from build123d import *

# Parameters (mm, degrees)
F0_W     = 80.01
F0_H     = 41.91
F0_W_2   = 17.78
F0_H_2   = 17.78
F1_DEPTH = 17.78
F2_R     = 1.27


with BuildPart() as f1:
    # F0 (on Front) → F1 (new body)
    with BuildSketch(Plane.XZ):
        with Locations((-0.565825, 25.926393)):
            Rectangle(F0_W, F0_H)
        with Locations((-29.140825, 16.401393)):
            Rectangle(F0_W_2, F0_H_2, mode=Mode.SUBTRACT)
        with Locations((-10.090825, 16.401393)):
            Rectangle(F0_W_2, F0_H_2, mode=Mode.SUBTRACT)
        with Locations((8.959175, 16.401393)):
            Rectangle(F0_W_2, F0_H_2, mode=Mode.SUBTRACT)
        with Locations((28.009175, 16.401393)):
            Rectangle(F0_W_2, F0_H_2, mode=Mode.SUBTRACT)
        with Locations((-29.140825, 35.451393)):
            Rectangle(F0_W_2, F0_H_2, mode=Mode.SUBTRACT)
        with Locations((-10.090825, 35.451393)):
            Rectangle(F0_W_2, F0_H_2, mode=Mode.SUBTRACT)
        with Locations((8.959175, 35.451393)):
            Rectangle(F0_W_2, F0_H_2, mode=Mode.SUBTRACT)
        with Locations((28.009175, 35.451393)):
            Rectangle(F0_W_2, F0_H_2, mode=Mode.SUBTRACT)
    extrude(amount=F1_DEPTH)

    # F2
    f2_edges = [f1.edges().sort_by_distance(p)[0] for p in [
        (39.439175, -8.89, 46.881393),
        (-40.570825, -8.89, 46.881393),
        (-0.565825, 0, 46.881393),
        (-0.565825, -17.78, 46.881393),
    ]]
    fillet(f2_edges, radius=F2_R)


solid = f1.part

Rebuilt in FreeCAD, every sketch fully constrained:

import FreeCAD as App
import Part
import Sketcher
Q = App.Units.Quantity


def edges_at(feature, points):
    """Names of the edges that pass closest to the given points."""
    edges = feature.Shape.Edges
    near = lambda p: min(range(len(edges)), key=lambda i: edges[i].distToShape(Part.Vertex(*p))[0])
    return sorted({f"Edge{near(p) + 1}" for p in points})

doc = App.newDocument("Part")
params = doc.addObject("Spreadsheet::Sheet", "Params")
for row, (alias, value) in enumerate([
    ("sketch1_width", "0.7 in"),
    ("sketch1_width2", "3.15 in"),
    ("sketch1_height", "1.65 in"),
    ("pad1_length", "0.7 in"),
    ("fillet_radius", "0.05 in"),
], start=1):
    params.set(f"A{row}", alias)
    params.set(f"B{row}", "=" + value)
    params.setAlias(f"B{row}", alias)

body = doc.addObject("PartDesign::Body", "Body")

# Sketch on XZ plane
sketch1 = body.newObject("Sketcher::SketchObject", "Sketch")
sketch1.AttachmentSupport = (doc.getObject("XZ_Plane"), [""])
sketch1.MapMode = "FlatFace"
sketch1.addGeometry([
    Part.LineSegment(App.Vector(-40.570825, 46.881393, 0), App.Vector(-40.570825, 4.971393, 0)),  # 0
    Part.LineSegment(App.Vector(-40.570825, 4.971393, 0), App.Vector(39.439175, 4.971393, 0)),  # 1
    Part.LineSegment(App.Vector(39.439175, 4.971393, 0), App.Vector(39.439175, 46.881393, 0)),  # 2
    Part.LineSegment(App.Vector(39.439175, 46.881393, 0), App.Vector(-40.570825, 46.881393, 0)),  # 3
    Part.LineSegment(App.Vector(-20.250825, 7.511393, 0), App.Vector(-38.030825, 7.511393, 0)),  # 4
    Part.LineSegment(App.Vector(-38.030825, 7.511393, 0), App.Vector(-38.030825, 25.291393, 0)),  # 5
    Part.LineSegment(App.Vector(-38.030825, 25.291393, 0), App.Vector(-20.250825, 25.291393, 0)),  # 6
    Part.LineSegment(App.Vector(-20.250825, 25.291393, 0), App.Vector(-20.250825, 7.511393, 0)),  # 7
    Part.LineSegment(App.Vector(-1.200825, 7.511393, 0), App.Vector(-18.980825, 7.511393, 0)),  # 8
    Part.LineSegment(App.Vector(-18.980825, 7.511393, 0), App.Vector(-18.980825, 25.291393, 0)),  # 9
    Part.LineSegment(App.Vector(-18.980825, 25.291393, 0), App.Vector(-1.200825, 25.291393, 0)),  # 10
    Part.LineSegment(App.Vector(-1.200825, 25.291393, 0), App.Vector(-1.200825, 7.511393, 0)),  # 11
    Part.LineSegment(App.Vector(17.849175, 7.511393, 0), App.Vector(0.069175, 7.511393, 0)),  # 12
    Part.LineSegment(App.Vector(0.069175, 7.511393, 0), App.Vector(0.069175, 25.291393, 0)),  # 13
    Part.LineSegment(App.Vector(0.069175, 25.291393, 0), App.Vector(17.849175, 25.291393, 0)),  # 14
    Part.LineSegment(App.Vector(17.849175, 25.291393, 0), App.Vector(17.849175, 7.511393, 0)),  # 15
    Part.LineSegment(App.Vector(36.899175, 7.511393, 0), App.Vector(19.119175, 7.511393, 0)),  # 16
    Part.LineSegment(App.Vector(19.119175, 7.511393, 0), App.Vector(19.119175, 25.291393, 0)),  # 17
    Part.LineSegment(App.Vector(19.119175, 25.291393, 0), App.Vector(36.899175, 25.291393, 0)),  # 18
    Part.LineSegment(App.Vector(36.899175, 25.291393, 0), App.Vector(36.899175, 7.511393, 0)),  # 19
    Part.LineSegment(App.Vector(-20.250825, 26.561393, 0), App.Vector(-38.030825, 26.561393, 0)),  # 20
    Part.LineSegment(App.Vector(-38.030825, 26.561393, 0), App.Vector(-38.030825, 44.341393, 0)),  # 21
    Part.LineSegment(App.Vector(-38.030825, 44.341393, 0), App.Vector(-20.250825, 44.341393, 0)),  # 22
    Part.LineSegment(App.Vector(-20.250825, 44.341393, 0), App.Vector(-20.250825, 26.561393, 0)),  # 23
    Part.LineSegment(App.Vector(-1.200825, 26.561393, 0), App.Vector(-18.980825, 26.561393, 0)),  # 24
    Part.LineSegment(App.Vector(-18.980825, 26.561393, 0), App.Vector(-18.980825, 44.341393, 0)),  # 25
    Part.LineSegment(App.Vector(-18.980825, 44.341393, 0), App.Vector(-1.200825, 44.341393, 0)),  # 26
    Part.LineSegment(App.Vector(-1.200825, 44.341393, 0), App.Vector(-1.200825, 26.561393, 0)),  # 27
    Part.LineSegment(App.Vector(17.849175, 26.561393, 0), App.Vector(0.069175, 26.561393, 0)),  # 28
    Part.LineSegment(App.Vector(0.069175, 26.561393, 0), App.Vector(0.069175, 44.341393, 0)),  # 29
    Part.LineSegment(App.Vector(0.069175, 44.341393, 0), App.Vector(17.849175, 44.341393, 0)),  # 30
    Part.LineSegment(App.Vector(17.849175, 44.341393, 0), App.Vector(17.849175, 26.561393, 0)),  # 31
    Part.LineSegment(App.Vector(36.899175, 26.561393, 0), App.Vector(19.119175, 26.561393, 0)),  # 32
    Part.LineSegment(App.Vector(19.119175, 26.561393, 0), App.Vector(19.119175, 44.341393, 0)),  # 33
    Part.LineSegment(App.Vector(19.119175, 44.341393, 0), App.Vector(36.899175, 44.341393, 0)),  # 34
    Part.LineSegment(App.Vector(36.899175, 44.341393, 0), App.Vector(36.899175, 26.561393, 0)),  # 35
], False)
sketch1.addConstraint([
    Sketcher.Constraint("Coincident", 0, 2, 1, 1),
    Sketcher.Constraint("Coincident", 1, 2, 2, 1),
    Sketcher.Constraint("Coincident", 2, 2, 3, 1),
    Sketcher.Constraint("Coincident", 3, 2, 0, 1),
    Sketcher.Constraint("Coincident", 4, 2, 5, 1),
    Sketcher.Constraint("Coincident", 5, 2, 6, 1),
    Sketcher.Constraint("Coincident", 6, 2, 7, 1),
    Sketcher.Constraint("Coincident", 7, 2, 4, 1),
    Sketcher.Constraint("Coincident", 8, 2, 9, 1),
    Sketcher.Constraint("Coincident", 9, 2, 10, 1),
    Sketcher.Constraint("Coincident", 10, 2, 11, 1),
    Sketcher.Constraint("Coincident", 11, 2, 8, 1),
    Sketcher.Constraint("Coincident", 12, 2, 13, 1),
    Sketcher.Constraint("Coincident", 13, 2, 14, 1),
    Sketcher.Constraint("Coincident", 14, 2, 15, 1),
    Sketcher.Constraint("Coincident", 15, 2, 12, 1),
    Sketcher.Constraint("Coincident", 16, 2, 17, 1),
    Sketcher.Constraint("Coincident", 17, 2, 18, 1),
    Sketcher.Constraint("Coincident", 18, 2, 19, 1),
    Sketcher.Constraint("Coincident", 19, 2, 16, 1),
    Sketcher.Constraint("Coincident", 20, 2, 21, 1),
    Sketcher.Constraint("Coincident", 21, 2, 22, 1),
    Sketcher.Constraint("Coincident", 22, 2, 23, 1),
    Sketcher.Constraint("Coincident", 23, 2, 20, 1),
    Sketcher.Constraint("Coincident", 24, 2, 25, 1),
    Sketcher.Constraint("Coincident", 25, 2, 26, 1),
    Sketcher.Constraint("Coincident", 26, 2, 27, 1),
    Sketcher.Constraint("Coincident", 27, 2, 24, 1),
    Sketcher.Constraint("Coincident", 28, 2, 29, 1),
    Sketcher.Constraint("Coincident", 29, 2, 30, 1),
    Sketcher.Constraint("Coincident", 30, 2, 31, 1),
    Sketcher.Constraint("Coincident", 31, 2, 28, 1),
    Sketcher.Constraint("Coincident", 32, 2, 33, 1),
    Sketcher.Constraint("Coincident", 33, 2, 34, 1),
    Sketcher.Constraint("Coincident", 34, 2, 35, 1),
    Sketcher.Constraint("Coincident", 35, 2, 32, 1),
    Sketcher.Constraint("Vertical", 0),
    Sketcher.Constraint("Horizontal", 1),
    Sketcher.Constraint("Vertical", 2),
    Sketcher.Constraint("Horizontal", 3),
    Sketcher.Constraint("Horizontal", 4),
    Sketcher.Constraint("Vertical", 5),
    Sketcher.Constraint("Horizontal", 6),
    Sketcher.Constraint("Vertical", 7),
    Sketcher.Constraint("Horizontal", 8),
    Sketcher.Constraint("Vertical", 9),
    Sketcher.Constraint("Horizontal", 10),
    Sketcher.Constraint("Vertical", 11),
    Sketcher.Constraint("Horizontal", 12),
    Sketcher.Constraint("Vertical", 13),
    Sketcher.Constraint("Horizontal", 14),
    Sketcher.Constraint("Vertical", 15),
    Sketcher.Constraint("Horizontal", 16),
    Sketcher.Constraint("Vertical", 17),
    Sketcher.Constraint("Horizontal", 18),
    Sketcher.Constraint("Vertical", 19),
    Sketcher.Constraint("Horizontal", 20),
    Sketcher.Constraint("Vertical", 21),
    Sketcher.Constraint("Horizontal", 22),
    Sketcher.Constraint("Vertical", 23),
    Sketcher.Constraint("Horizontal", 24),
    Sketcher.Constraint("Vertical", 25),
    Sketcher.Constraint("Horizontal", 26),
    Sketcher.Constraint("Vertical", 27),
    Sketcher.Constraint("Horizontal", 28),
    Sketcher.Constraint("Vertical", 29),
    Sketcher.Constraint("Horizontal", 30),
    Sketcher.Constraint("Vertical", 31),
    Sketcher.Constraint("Horizontal", 32),
    Sketcher.Constraint("Vertical", 33),
    Sketcher.Constraint("Horizontal", 34),
    Sketcher.Constraint("Vertical", 35),
    Sketcher.Constraint("Horizontal", 7, 2, 8, 2),
    Sketcher.Constraint("Horizontal", 6, 2, 9, 2),
    Sketcher.Constraint("Horizontal", 11, 2, 12, 2),
    Sketcher.Constraint("Horizontal", 10, 2, 13, 2),
    Sketcher.Constraint("Horizontal", 15, 2, 16, 2),
    Sketcher.Constraint("Horizontal", 14, 2, 17, 2),
    Sketcher.Constraint("Horizontal", 23, 2, 24, 2),
    Sketcher.Constraint("Horizontal", 22, 2, 25, 2),
    Sketcher.Constraint("Horizontal", 27, 2, 28, 2),
    Sketcher.Constraint("Horizontal", 26, 2, 29, 2),
    Sketcher.Constraint("Horizontal", 31, 2, 32, 2),
    Sketcher.Constraint("Horizontal", 30, 2, 33, 2),
    Sketcher.Constraint("Vertical", 5, 2, 20, 2),
    Sketcher.Constraint("Vertical", 7, 2, 22, 2),
    Sketcher.Constraint("Vertical", 9, 2, 24, 2),
    Sketcher.Constraint("Vertical", 11, 2, 26, 2),
    Sketcher.Constraint("Vertical", 13, 2, 28, 2),
    Sketcher.Constraint("Vertical", 15, 2, 30, 2),
    Sketcher.Constraint("Vertical", 17, 2, 32, 2),
    Sketcher.Constraint("Vertical", 19, 2, 34, 2),
    Sketcher.Constraint("Equal", 6, 8),
    Sketcher.Constraint("Equal", 10, 12),
    Sketcher.Constraint("Equal", 14, 16),
    Sketcher.Constraint("Equal", 34, 5),
    Sketcher.Constraint("Equal", 19, 21),
    Sketcher.Constraint("DistanceX", 4, 2, 4, 1, Q("0.7 in")),
    Sketcher.Constraint("DistanceX", 1, 1, 1, 2, Q("3.15 in")),
    Sketcher.Constraint("DistanceY", 0, 2, 0, 1, Q("1.65 in")),
    Sketcher.Constraint("DistanceX", 0, 2, 4, 2, Q("0.1 in")),
    Sketcher.Constraint("DistanceY", 0, 2, 4, 2, Q("0.1 in")),
    Sketcher.Constraint("DistanceX", 7, 2, 12, 2, Q("0.8 in")),
    Sketcher.Constraint("DistanceX", 11, 2, 16, 2, Q("0.8 in")),
    Sketcher.Constraint("DistanceX", 16, 2, 1, 2, Q("0.8 in")),
    Sketcher.Constraint("DistanceY", 20, 2, 3, 2, Q("0.8 in")),
    Sketcher.Constraint("DistanceX", 0, 2, -1, 1, 40.570825),
    Sketcher.Constraint("DistanceY", -1, 1, 0, 2, 4.971393),
])
sketch1.setExpression("Constraints[97]", "Params.sketch1_width")
sketch1.setExpression("Constraints[98]", "Params.sketch1_width2")
sketch1.setExpression("Constraints[99]", "Params.sketch1_height")
pad1 = body.newObject("PartDesign::Pad", "Pad")
pad1.Profile = sketch1
pad1.setExpression("Length", "Params.pad1_length")
doc.recompute()

fillet = body.newObject("PartDesign::Fillet", "Fillet")
fillet.Base = (pad1, edges_at(pad1, [
    (39.439, -8.89, 46.881),
    (-40.571, -8.89, 46.881),
    (-0.566, 0, 46.881),
    (-0.566, -17.78, 46.881),
]))
fillet.setExpression("Radius", "Params.fillet_radius")

doc.recompute()
